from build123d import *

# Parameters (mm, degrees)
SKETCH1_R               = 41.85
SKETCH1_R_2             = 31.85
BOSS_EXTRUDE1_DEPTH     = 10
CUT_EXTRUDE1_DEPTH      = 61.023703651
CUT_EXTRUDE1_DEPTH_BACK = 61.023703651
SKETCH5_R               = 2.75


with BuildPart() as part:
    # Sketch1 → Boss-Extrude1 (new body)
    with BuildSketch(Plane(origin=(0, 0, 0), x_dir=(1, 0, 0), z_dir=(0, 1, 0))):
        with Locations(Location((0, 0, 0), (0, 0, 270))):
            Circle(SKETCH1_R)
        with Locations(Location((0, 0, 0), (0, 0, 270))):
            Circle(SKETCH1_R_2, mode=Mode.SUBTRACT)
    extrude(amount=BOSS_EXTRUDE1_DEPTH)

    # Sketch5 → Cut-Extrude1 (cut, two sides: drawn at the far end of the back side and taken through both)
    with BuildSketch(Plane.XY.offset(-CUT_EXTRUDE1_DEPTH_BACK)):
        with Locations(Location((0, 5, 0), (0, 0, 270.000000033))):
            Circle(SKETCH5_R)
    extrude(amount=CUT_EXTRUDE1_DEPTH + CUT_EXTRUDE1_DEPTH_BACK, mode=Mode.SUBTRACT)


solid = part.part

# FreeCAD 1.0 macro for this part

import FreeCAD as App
import Part
import Sketcher

V = App.Vector
Q = App.Units.Quantity

doc = App.newDocument("Part")
body = doc.addObject("PartDesign::Body", "Body")

# Sketch on XZ plane
sketch1 = body.newObject("Sketcher::SketchObject", "Sketch")
sketch1.AttachmentSupport = (doc.getObject("XZ_Plane"), [""])
sketch1.MapMode = "FlatFace"
sketch1.addGeometry([
    Part.Circle(V(0, 0, 0), V(0, 0, 1), 42),
    Part.Circle(V(0, 0, 0), V(0, 0, 1), 32),
], False)
sketch1.addConstraint([
    Sketcher.Constraint("Coincident", 0, 3, -1, 1),
    Sketcher.Constraint("Coincident", 1, 3, -1, 1),
    Sketcher.Constraint("Diameter", 0, Q("83.7 mm")),
    Sketcher.Constraint("Diameter", 1, Q("63.7 mm")),
])
pad1 = body.newObject("PartDesign::Pad", "Pad")
pad1.Profile = sketch1
pad1.Length = 10
pad1.Reversed = True

# Sketch on XY plane
sketch2 = body.newObject("Sketcher::SketchObject", "Sketch001")
sketch2.AttachmentSupport = (doc.getObject("XY_Plane"), [""])
sketch2.MapMode = "FlatFace"
sketch2.addGeometry(Part.Circle(V(0, 5, 0), V(0, 0, 1), 2.8), False)
sketch2.addConstraint([
    Sketcher.Constraint("PointOnObject", 0, 3, -2),
    Sketcher.Constraint("Diameter", 0, Q("5.5 mm")),
    Sketcher.Constraint("DistanceY", -1, 1, 0, 3, Q("5 mm")),
])
pocket1 = body.newObject("PartDesign::Pocket", "Pocket")
pocket1.Profile = sketch2
pocket1.Type = "ThroughAll"
pocket1.Midplane = True

doc.recompute()
